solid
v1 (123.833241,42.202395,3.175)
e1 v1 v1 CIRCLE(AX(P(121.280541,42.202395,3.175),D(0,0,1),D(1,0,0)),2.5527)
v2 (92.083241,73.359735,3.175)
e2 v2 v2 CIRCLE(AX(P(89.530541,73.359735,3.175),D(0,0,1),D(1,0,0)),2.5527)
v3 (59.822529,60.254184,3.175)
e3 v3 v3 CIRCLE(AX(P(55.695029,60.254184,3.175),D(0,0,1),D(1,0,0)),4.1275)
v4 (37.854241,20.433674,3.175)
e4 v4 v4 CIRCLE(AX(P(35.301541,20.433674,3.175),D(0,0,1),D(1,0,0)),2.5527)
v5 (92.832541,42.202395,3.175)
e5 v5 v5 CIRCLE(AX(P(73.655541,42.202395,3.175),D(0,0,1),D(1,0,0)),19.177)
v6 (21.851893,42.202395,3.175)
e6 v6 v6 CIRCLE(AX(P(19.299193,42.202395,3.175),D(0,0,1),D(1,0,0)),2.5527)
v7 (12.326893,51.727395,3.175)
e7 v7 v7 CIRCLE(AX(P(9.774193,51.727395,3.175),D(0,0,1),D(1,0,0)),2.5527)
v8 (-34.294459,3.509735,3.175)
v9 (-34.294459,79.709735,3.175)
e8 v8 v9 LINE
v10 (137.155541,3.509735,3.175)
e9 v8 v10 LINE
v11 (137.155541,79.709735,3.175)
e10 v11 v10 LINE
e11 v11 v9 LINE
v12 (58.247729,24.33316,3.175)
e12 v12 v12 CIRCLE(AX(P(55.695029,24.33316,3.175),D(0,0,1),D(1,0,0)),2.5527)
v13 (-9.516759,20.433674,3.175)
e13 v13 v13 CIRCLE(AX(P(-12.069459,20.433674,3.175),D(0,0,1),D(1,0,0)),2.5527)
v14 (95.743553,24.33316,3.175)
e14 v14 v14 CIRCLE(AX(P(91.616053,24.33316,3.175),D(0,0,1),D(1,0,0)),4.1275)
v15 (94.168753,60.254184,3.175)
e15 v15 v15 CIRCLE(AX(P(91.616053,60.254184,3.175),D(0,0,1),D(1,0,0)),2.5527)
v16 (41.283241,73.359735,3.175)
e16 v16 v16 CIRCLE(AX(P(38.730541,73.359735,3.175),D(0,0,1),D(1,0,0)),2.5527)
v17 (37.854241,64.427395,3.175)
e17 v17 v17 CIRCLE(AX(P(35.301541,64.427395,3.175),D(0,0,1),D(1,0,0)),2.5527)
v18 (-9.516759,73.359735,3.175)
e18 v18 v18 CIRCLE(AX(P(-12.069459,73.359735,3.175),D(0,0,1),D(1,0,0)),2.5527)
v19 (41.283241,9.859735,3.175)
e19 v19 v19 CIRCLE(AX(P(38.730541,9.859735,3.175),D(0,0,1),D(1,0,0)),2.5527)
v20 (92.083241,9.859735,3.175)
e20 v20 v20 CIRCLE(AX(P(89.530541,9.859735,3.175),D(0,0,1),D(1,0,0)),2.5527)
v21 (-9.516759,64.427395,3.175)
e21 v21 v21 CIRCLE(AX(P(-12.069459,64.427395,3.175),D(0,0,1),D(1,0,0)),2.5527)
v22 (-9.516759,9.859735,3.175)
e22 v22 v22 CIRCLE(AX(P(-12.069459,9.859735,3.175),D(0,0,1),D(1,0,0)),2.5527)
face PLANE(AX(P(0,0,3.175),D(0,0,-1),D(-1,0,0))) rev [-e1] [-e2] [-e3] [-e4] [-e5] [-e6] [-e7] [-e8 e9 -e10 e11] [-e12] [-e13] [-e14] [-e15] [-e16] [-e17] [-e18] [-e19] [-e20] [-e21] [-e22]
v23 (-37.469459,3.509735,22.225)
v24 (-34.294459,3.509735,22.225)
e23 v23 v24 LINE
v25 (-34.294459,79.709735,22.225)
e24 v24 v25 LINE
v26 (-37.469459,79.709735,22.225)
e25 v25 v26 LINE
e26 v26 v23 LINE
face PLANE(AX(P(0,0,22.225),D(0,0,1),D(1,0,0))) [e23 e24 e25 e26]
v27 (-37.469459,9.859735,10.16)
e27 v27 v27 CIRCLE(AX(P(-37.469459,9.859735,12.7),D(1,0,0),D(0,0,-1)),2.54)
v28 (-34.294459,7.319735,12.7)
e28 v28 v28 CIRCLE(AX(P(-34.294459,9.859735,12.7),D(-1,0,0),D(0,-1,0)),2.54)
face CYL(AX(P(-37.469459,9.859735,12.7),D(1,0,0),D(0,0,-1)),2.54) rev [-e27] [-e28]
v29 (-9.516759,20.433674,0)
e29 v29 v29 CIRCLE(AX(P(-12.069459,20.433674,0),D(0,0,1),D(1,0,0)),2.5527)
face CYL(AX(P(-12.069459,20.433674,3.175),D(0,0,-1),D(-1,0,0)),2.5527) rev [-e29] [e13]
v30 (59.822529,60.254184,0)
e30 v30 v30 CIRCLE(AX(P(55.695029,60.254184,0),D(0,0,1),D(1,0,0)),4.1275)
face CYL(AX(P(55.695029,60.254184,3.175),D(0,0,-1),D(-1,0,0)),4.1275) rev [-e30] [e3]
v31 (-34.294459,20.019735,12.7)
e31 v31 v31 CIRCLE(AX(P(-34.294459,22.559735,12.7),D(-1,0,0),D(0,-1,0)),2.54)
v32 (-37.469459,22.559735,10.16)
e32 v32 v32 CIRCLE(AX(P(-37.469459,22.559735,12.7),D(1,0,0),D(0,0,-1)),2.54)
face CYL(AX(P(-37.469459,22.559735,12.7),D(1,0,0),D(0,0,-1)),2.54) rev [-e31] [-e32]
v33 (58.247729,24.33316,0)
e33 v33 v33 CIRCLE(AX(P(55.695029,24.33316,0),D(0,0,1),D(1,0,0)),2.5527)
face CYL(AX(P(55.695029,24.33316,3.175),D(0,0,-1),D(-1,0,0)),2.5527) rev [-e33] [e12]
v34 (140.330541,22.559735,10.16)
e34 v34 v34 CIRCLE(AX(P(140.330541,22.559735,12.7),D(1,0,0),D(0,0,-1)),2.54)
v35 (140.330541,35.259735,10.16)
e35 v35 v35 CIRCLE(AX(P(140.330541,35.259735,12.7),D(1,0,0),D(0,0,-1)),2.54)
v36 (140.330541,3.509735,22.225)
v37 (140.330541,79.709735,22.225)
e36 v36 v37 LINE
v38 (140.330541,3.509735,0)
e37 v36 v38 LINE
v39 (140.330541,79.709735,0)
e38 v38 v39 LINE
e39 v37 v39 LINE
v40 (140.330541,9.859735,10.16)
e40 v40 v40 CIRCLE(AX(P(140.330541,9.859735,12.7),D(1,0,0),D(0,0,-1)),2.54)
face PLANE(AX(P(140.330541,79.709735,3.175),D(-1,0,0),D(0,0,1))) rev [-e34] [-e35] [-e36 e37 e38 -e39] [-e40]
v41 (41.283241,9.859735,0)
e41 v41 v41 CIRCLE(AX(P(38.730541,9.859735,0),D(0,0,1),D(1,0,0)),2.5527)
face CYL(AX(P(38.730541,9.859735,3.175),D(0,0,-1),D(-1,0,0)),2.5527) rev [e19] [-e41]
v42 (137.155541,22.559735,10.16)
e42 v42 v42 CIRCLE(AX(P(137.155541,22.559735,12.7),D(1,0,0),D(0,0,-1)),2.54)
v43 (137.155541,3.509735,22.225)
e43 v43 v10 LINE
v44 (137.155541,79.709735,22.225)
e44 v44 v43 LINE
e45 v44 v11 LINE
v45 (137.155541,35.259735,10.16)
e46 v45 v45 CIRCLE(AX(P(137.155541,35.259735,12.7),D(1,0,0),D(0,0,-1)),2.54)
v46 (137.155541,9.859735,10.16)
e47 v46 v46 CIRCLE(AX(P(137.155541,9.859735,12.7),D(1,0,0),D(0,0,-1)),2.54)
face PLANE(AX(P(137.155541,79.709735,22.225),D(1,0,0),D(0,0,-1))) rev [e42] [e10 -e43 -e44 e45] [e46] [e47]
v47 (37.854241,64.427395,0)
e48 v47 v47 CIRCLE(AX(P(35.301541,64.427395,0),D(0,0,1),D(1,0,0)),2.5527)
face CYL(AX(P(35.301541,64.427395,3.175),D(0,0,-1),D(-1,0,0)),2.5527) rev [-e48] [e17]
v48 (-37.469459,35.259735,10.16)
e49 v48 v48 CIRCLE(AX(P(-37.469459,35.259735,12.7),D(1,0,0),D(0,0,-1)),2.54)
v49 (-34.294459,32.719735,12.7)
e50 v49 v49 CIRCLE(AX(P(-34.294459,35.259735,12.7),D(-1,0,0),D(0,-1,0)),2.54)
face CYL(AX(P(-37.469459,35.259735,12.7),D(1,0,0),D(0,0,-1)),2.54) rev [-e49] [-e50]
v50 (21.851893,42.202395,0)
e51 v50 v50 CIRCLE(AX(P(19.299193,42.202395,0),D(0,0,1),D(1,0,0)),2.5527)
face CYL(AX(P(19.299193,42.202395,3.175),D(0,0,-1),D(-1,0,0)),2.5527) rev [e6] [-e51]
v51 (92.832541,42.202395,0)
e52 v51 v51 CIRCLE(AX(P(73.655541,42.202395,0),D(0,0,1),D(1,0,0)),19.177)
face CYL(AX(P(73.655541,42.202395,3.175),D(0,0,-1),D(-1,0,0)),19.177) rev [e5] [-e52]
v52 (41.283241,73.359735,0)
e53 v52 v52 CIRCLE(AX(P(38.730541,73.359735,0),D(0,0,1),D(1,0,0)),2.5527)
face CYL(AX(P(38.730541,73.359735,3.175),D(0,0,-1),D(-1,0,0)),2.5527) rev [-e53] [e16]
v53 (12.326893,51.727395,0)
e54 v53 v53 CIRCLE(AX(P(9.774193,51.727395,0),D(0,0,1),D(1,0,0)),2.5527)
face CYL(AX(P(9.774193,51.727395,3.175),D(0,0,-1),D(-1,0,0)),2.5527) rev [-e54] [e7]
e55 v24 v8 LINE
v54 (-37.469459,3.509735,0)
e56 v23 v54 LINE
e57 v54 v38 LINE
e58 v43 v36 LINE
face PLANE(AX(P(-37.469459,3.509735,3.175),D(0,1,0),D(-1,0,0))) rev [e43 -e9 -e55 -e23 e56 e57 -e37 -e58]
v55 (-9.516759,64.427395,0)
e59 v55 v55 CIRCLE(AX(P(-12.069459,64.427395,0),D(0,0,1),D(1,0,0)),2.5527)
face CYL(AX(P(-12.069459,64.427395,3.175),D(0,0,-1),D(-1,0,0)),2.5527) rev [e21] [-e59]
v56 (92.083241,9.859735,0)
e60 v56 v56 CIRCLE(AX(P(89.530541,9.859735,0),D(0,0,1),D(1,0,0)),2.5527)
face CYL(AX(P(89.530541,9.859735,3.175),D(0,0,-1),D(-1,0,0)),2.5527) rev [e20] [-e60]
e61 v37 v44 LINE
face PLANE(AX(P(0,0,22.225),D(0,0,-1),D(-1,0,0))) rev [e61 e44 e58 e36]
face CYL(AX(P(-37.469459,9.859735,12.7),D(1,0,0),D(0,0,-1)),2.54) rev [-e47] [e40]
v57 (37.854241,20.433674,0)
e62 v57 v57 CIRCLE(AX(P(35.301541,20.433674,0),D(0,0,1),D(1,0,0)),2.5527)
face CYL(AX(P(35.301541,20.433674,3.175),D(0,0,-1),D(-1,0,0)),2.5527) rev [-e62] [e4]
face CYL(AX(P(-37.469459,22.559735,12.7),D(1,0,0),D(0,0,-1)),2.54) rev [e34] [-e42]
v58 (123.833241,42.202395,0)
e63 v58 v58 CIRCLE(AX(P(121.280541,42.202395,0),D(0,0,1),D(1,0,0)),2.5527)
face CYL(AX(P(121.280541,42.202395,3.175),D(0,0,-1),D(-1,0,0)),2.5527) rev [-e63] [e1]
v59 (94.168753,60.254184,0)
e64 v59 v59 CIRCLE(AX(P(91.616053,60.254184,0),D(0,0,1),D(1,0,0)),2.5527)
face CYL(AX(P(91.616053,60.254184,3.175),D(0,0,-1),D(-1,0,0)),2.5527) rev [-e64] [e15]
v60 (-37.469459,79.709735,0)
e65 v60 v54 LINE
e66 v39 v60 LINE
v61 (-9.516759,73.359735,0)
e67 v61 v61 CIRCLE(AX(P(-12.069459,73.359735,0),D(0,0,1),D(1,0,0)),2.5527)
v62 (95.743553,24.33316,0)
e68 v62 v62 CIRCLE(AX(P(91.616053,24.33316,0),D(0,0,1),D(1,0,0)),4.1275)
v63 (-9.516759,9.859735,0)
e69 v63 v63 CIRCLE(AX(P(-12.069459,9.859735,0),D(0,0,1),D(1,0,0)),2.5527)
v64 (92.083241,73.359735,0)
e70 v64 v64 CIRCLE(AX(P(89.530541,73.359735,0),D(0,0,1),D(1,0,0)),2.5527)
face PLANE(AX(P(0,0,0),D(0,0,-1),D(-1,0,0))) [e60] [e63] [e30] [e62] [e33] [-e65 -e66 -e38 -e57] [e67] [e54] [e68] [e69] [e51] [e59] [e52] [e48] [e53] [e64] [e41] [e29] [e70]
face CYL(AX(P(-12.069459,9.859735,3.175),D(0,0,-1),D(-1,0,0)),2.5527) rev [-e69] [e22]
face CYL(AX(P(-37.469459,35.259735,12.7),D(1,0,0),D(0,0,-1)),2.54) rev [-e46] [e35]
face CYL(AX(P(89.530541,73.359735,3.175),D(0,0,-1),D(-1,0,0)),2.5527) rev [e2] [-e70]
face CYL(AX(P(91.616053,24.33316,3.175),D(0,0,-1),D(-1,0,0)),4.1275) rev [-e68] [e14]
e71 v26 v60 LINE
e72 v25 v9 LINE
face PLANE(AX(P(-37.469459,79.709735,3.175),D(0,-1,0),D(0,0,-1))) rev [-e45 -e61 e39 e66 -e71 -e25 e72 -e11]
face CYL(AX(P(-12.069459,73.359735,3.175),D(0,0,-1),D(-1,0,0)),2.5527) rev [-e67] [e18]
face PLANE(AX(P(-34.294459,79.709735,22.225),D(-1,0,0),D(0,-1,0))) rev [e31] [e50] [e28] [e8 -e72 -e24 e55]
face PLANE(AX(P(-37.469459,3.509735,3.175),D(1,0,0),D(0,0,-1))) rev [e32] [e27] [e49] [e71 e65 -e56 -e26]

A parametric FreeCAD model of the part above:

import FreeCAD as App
import Part
import Sketcher

V = App.Vector
Q = App.Units.Quantity


def add_polygon(sketch, points):
    """Adds a closed chain of lines whose ends are joined by coincident constraints."""
    first, n = sketch.GeometryCount, len(points)
    for a, b in zip(points, points[1:] + points[:1]):
        sketch.addGeometry(Part.LineSegment(App.Vector(*a, 0), App.Vector(*b, 0)), False)
    for i in range(n):
        sketch.addConstraint(Sketcher.Constraint("Coincident", first + i, 2, first + (i + 1) % n, 1))

doc = App.newDocument("Part")
body = doc.addObject("PartDesign::Body", "Body")

# Sketch on XY plane
sketch1 = body.newObject("Sketcher::SketchObject", "Sketch")
sketch1.AttachmentSupport = (doc.getObject("XY_Plane"), [""])
sketch1.MapMode = "FlatFace"
add_polygon(sketch1, [(-37.5, 79.7), (-37.5, 3.5), (140.3, 3.5), (140.3, 79.7)])  # lines 0-3
sketch1.addGeometry(Part.Circle(V(-12.1, 9.9, 0), V(0, 0, 1), 2.6), False)  # 4
sketch1.addGeometry(Part.Circle(V(-12.1, 20.4, 0), V(0, 0, 1), 2.6), False)  # 5
sketch1.addGeometry(Part.Circle(V(38.7, 9.9, 0), V(0, 0, 1), 2.6), False)  # 6
sketch1.addGeometry(Part.Circle(V(35.3, 20.4, 0), V(0, 0, 1), 2.6), False)  # 7
sketch1.addGeometry(Part.Circle(V(55.7, 24.3, 0), V(0, 0, 1), 2.6), False)  # 8
sketch1.addGeometry(Part.Circle(V(89.5, 9.9, 0), V(0, 0, 1), 2.6), False)  # 9
sketch1.addGeometry(Part.Circle(V(91.6, 24.3, 0), V(0, 0, 1), 4.1), False)  # 10
sketch1.addGeometry(Part.Circle(V(19.3, 42.2, 0), V(0, 0, 1), 2.6), False)  # 11
sketch1.addGeometry(Part.Circle(V(9.8, 51.7, 0), V(0, 0, 1), 2.6), False)  # 12
sketch1.addGeometry(Part.Circle(V(-12.1, 64.4, 0), V(0, 0, 1), 2.6), False)  # 13
sketch1.addGeometry(Part.Circle(V(-12.1, 73.4, 0), V(0, 0, 1), 2.6), False)  # 14
sketch1.addGeometry(Part.Circle(V(35.3, 64.4, 0), V(0, 0, 1), 2.6), False)  # 15
sketch1.addGeometry(Part.Circle(V(38.7, 73.4, 0), V(0, 0, 1), 2.6), False)  # 16
sketch1.addGeometry(Part.Circle(V(73.7, 42.2, 0), V(0, 0, 1), 19.2), False)  # 17
sketch1.addGeometry(Part.Circle(V(121.3, 42.2, 0), V(0, 0, 1), 2.6), False)  # 18
sketch1.addGeometry(Part.Circle(V(55.7, 60.3, 0), V(0, 0, 1), 4.1), False)  # 19
sketch1.addGeometry(Part.Circle(V(91.6, 60.3, 0), V(0, 0, 1), 2.6), False)  # 20
sketch1.addGeometry(Part.Circle(V(89.5, 73.4, 0), V(0, 0, 1), 2.6), False)  # 21
sketch1.addConstraint([
    Sketcher.Constraint("Vertical", 0),
    Sketcher.Constraint("Horizontal", 1),
    Sketcher.Constraint("Vertical", 2),
    Sketcher.Constraint("Horizontal", 3),
    Sketcher.Constraint("Equal", 4, 5),
    Sketcher.Constraint("Equal", 5, 6),
    Sketcher.Constraint("Equal", 6, 7),
    Sketcher.Constraint("Equal", 7, 8),
    Sketcher.Constraint("Equal", 8, 9),
    Sketcher.Constraint("Equal", 9, 11),
    Sketcher.Constraint("Equal", 11, 12),
    Sketcher.Constraint("Equal", 12, 13),
    Sketcher.Constraint("Equal", 13, 14),
    Sketcher.Constraint("Equal", 14, 15),
    Sketcher.Constraint("Equal", 15, 16),
    Sketcher.Constraint("Equal", 16, 18),
    Sketcher.Constraint("Equal", 10, 19),
    Sketcher.Constraint("Equal", 18, 20),
    Sketcher.Constraint("Equal", 20, 21),
    Sketcher.Constraint("Horizontal", 4, 3, 6, 3),
    Sketcher.Constraint("Horizontal", 5, 3, 7, 3),
    Sketcher.Constraint("Horizontal", 6, 3, 9, 3),
    Sketcher.Constraint("Horizontal", 8, 3, 10, 3),
    Sketcher.Constraint("Horizontal", 13, 3, 15, 3),
    Sketcher.Constraint("Horizontal", 14, 3, 16, 3),
    Sketcher.Constraint("Horizontal", 11, 3, 17, 3),
    Sketcher.Constraint("Horizontal", 17, 3, 18, 3),
    Sketcher.Constraint("Horizontal", 19, 3, 20, 3),
    Sketcher.Constraint("Horizontal", 16, 3, 21, 3),
    Sketcher.Constraint("Vertical", 4, 3, 5, 3),
    Sketcher.Constraint("Vertical", 5, 3, 13, 3),
    Sketcher.Constraint("Vertical", 13, 3, 14, 3),
    Sketcher.Constraint("Vertical", 7, 3, 15, 3),
    Sketcher.Constraint("Vertical", 6, 3, 16, 3),
    Sketcher.Constraint("Vertical", 8, 3, 19, 3),
    Sketcher.Constraint("Vertical", 10, 3, 20, 3),
    Sketcher.Constraint("Vertical", 9, 3, 21, 3),
    Sketcher.Constraint("Diameter", 17, Q("1.51 in")),
    Sketcher.Constraint("DistanceX", 1, 1, 1, 2, Q("7 in")),
    Sketcher.Constraint("DistanceY", 0, 2, 0, 1, Q("3 in")),
    Sketcher.Constraint("Diameter", 4, Q("0.201 in")),
    Sketcher.Constraint("Diameter", 10, Q("0.325 in")),
    Sketcher.Constraint("DistanceX", 4, 3, 6, 3, Q("2 in")),
    Sketcher.Constraint("DistanceX", 6, 3, 9, 3, Q("2 in")),
    Sketcher.Constraint("DistanceX", 0, 2, 4, 3, Q("1 in")),
    Sketcher.Constraint("DistanceY", 12, 3, 13, 3, Q("0.5 in")),
    Sketcher.Constraint("DistanceY", 4, 3, 14, 3, Q("2.5 in")),
    Sketcher.Constraint("DistanceX", 7, 3, 17, 3, Q("1.51 in")),
    Sketcher.Constraint("DistanceX", 9, 3, 18, 3, Q("1.25 in")),
    Sketcher.Constraint("DistanceY", 0, 2, 4, 3, Q("0.25 in")),
    Sketcher.Constraint("DistanceX", 7, 3, 6, 3, Q("0.135 in")),
    Sketcher.Constraint("DistanceX", 12, 3, 11, 3, Q("0.375 in")),
    Sketcher.Constraint("DistanceY", 11, 3, 12, 3, Q("0.375 in")),
    Sketcher.Constraint("DistanceX", 4, 3, -1, 1, Q("12.069459 mm")),
    Sketcher.Constraint("DistanceX", -1, 1, 8, 3, Q("55.695029 mm")),
    Sketcher.Constraint("DistanceY", -1, 1, 8, 3, Q("24.33316 mm")),
    Sketcher.Constraint("DistanceY", 4, 3, 5, 3, Q("10.573939 mm")),
    Sketcher.Constraint("DistanceX", 11, 3, 7, 3, Q("16.002348 mm")),
    Sketcher.Constraint("DistanceY", 7, 3, 11, 3, Q("21.768721 mm")),
    Sketcher.Constraint("DistanceY", 19, 3, 15, 3, Q("4.173211 mm")),
    Sketcher.Constraint("DistanceY", -1, 1, 4, 3, Q("9.859735 mm")),
    Sketcher.Constraint("DistanceX", -1, 1, 10, 3, Q("91.616053 mm")),
])
pad1 = body.newObject("PartDesign::Pad", "Pad")
pad1.Profile = sketch1
pad1.Length = Q("0.125 in")

# Sketch on XY plane
sketch2 = body.newObject("Sketcher::SketchObject", "Sketch001")
sketch2.AttachmentSupport = (doc.getObject("XY_Plane"), [""])
sketch2.MapMode = "FlatFace"
sketch2.AttachmentOffset = App.Placement(V(0, 0, 0.125 * 25.4), App.Rotation())
add_polygon(sketch2, [(-37.5, 79.7), (-37.5, 3.5), (-34.3, 3.5), (-34.3, 79.7)])  # lines 0-3
add_polygon(sketch2, [(137.2, 79.7), (137.2, 3.5), (140.3, 3.5), (140.3, 79.7)])  # lines 4-7
sketch2.addConstraint([
    Sketcher.Constraint("Vertical", 0),
    Sketcher.Constraint("Horizontal", 1),
    Sketcher.Constraint("Vertical", 2),
    Sketcher.Constraint("Horizontal", 3),
    Sketcher.Constraint("Vertical", 4),
    Sketcher.Constraint("Horizontal", 5),
    Sketcher.Constraint("Vertical", 6),
    Sketcher.Constraint("Horizontal", 7),
    Sketcher.Constraint("Horizontal", 1, 2, 4, 2),
    Sketcher.Constraint("Horizontal", 3, 2, 6, 2),
    Sketcher.Constraint("Equal", 3, 5),
    Sketcher.Constraint("DistanceY", 0, 2, 0, 1, Q("3 in")),
    Sketcher.Constraint("DistanceX", 0, 2, 5, 2, Q("7 in")),
    Sketcher.Constraint("DistanceX", 1, 1, 1, 2, Q("0.125 in")),
    Sketcher.Constraint("DistanceX", 0, 2, -1, 1, Q("37.469459 mm")),
    Sketcher.Constraint("DistanceY", -1, 1, 0, 2, Q("3.509735 mm")),
])
pad2 = body.newObject("PartDesign::Pad", "Pad001")
pad2.Profile = sketch2
pad2.Length = Q("0.75 in")

# Sketch on YZ plane
sketch3 = body.newObject("Sketcher::SketchObject", "Sketch002")
sketch3.AttachmentSupport = (doc.getObject("YZ_Plane"), [""])
sketch3.MapMode = "FlatFace"
sketch3.AttachmentOffset = App.Placement(V(0, 0, 140.330541), App.Rotation())
sketch3.addGeometry([
    Part.Circle(V(35.3, 12.7, 0), V(0, 0, 1), 2.5),
    Part.Circle(V(22.6, 12.7, 0), V(0, 0, 1), 2.5),
    Part.Circle(V(9.9, 12.7, 0), V(0, 0, 1), 2.5),
], False)
sketch3.addConstraint([
    Sketcher.Constraint("Equal", 0, 1),
    Sketcher.Constraint("Equal", 1, 2),
    Sketcher.Constraint("Horizontal", 0, 3, 1, 3),
    Sketcher.Constraint("Horizontal", 1, 3, 2, 3),
    Sketcher.Constraint("Diameter", 0, Q("0.2 in")),
    Sketcher.Constraint("DistanceX", 2, 3, 0, 3, Q("1 in")),
    Sketcher.Constraint("DistanceY", -1, 1, 0, 3, Q("0.5 in")),
    Sketcher.Constraint("DistanceX", 1, 3, 0, 3, Q("0.5 in")),
    Sketcher.Constraint("DistanceX", -1, 1, 0, 3, Q("35.259735 mm")),
])
pocket1 = body.newObject("PartDesign::Pocket", "Pocket")
pocket1.Profile = sketch3
pocket1.Type = "ThroughAll"

doc.recompute()
